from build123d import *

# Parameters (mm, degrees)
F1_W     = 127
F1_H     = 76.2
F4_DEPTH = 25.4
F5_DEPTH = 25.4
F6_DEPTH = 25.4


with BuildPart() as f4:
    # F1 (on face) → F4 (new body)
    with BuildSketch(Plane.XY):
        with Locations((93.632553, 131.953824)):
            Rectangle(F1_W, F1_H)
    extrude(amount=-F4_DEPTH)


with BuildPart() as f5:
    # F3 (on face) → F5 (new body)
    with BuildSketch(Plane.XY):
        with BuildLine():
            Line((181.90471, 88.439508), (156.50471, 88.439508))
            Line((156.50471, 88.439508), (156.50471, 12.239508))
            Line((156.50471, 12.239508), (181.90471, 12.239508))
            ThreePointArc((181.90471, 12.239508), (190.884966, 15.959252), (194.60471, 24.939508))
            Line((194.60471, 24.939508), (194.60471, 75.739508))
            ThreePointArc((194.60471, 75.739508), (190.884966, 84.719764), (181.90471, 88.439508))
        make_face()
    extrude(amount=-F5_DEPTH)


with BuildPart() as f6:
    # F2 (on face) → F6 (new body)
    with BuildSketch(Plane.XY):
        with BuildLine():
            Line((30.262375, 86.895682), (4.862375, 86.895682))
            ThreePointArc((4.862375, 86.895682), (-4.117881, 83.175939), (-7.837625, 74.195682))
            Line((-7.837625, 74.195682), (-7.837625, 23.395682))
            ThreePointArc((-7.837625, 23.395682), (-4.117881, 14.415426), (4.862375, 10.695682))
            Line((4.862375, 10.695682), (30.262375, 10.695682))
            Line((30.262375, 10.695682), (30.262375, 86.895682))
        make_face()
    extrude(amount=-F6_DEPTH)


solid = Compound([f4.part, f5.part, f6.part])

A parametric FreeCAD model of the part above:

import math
import FreeCAD as App
import Part
import Sketcher

V = App.Vector
Q = App.Units.Quantity


def add_polygon(sketch, points):
    """Adds a closed chain of lines whose ends are joined by coincident constraints."""
    first, n = sketch.GeometryCount, len(points)
    for a, b in zip(points, points[1:] + points[:1]):
        sketch.addGeometry(Part.LineSegment(App.Vector(*a, 0), App.Vector(*b, 0)), False)
    for i in range(n):
        sketch.addConstraint(Sketcher.Constraint("Coincident", first + i, 2, first + (i + 1) % n, 1))

doc = App.newDocument("Part")
params = doc.addObject("Spreadsheet::Sheet", "Params")
for row, (alias, value) in enumerate([
    ("sketch1_width", "5 in"),
    ("sketch1_height", "3 in"),
    ("pad1_length", "1 in"),
    ("sketch2_radius", "0.5 in"),
    ("sketch2_width", "1 in"),
    ("sketch2_height", "3 in"),
    ("pad2_length", "1 in"),
    ("sketch3_radius", "0.4999999 in"),
    ("sketch3_width", "1 in"),
    ("sketch3_height", "2 in"),
    ("pad3_length", "1 in"),
], start=1):
    params.set(f"A{row}", alias)
    params.set(f"B{row}", "=" + value)
    params.setAlias(f"B{row}", alias)

body = doc.addObject("PartDesign::Body", "Body")

sketch1 = body.newObject("Sketcher::SketchObject", "Sketch")
sketch1.AttachmentSupport = (doc.getObject("XY_Plane"), [""])
sketch1.MapMode = "FlatFace"
add_polygon(sketch1, [(30.132553, 170.053824), (30.132553, 93.853824), (157.132553, 93.853824), (157.132553, 170.053824)])
sketch1.addConstraint(Sketcher.Constraint("Vertical", 0))
sketch1.addConstraint(Sketcher.Constraint("Horizontal", 1))
sketch1.addConstraint(Sketcher.Constraint("Vertical", 2))
sketch1.addConstraint(Sketcher.Constraint("Horizontal", 3))
sketch1.addConstraint(Sketcher.Constraint("DistanceX", 1, 1, 1, 2, Q("5 in")))
sketch1.addConstraint(Sketcher.Constraint("DistanceY", 0, 2, 0, 1, Q("3 in")))
sketch1.addConstraint(Sketcher.Constraint("DistanceX", -1, 1, 0, 2, 30.132553))
sketch1.addConstraint(Sketcher.Constraint("DistanceY", -1, 1, 0, 2, 93.853824))
sketch1.setExpression("Constraints[8]", "Params.sketch1_width")
sketch1.setExpression("Constraints[9]", "Params.sketch1_height")
pad1 = body.newObject("PartDesign::Pad", "Pad")
pad1.Profile = sketch1
pad1.setExpression("Length", "Params.pad1_length")
pad1.Reversed = True
body2 = doc.addObject("PartDesign::Body", "Body001")

sketch2 = body2.newObject("Sketcher::SketchObject", "Sketch001")
sketch2.AttachmentSupport = (doc.getObject("XY_Plane001"), [""])
sketch2.MapMode = "FlatFace"
sketch2.addGeometry(Part.LineSegment(V(181.90471, 88.439508, 0), V(156.50471, 88.439508, 0)), False)
sketch2.addGeometry(Part.LineSegment(V(156.50471, 88.439508, 0), V(156.50471, 12.239508, 0)), False)
sketch2.addGeometry(Part.LineSegment(V(156.50471, 12.239508, 0), V(181.90471, 12.239508, 0)), False)
sketch2.addGeometry(Part.ArcOfCircle(Part.Circle(V(181.90471, 24.939508, 0), V(0, 0, 1), 12.7), math.radians(-89.999998), math.radians(-0.000002)), False)
sketch2.addGeometry(Part.LineSegment(V(194.60471, 24.939508, 0), V(194.60471, 75.739508, 0)), False)
sketch2.addGeometry(Part.ArcOfCircle(Part.Circle(V(181.90471, 75.739508, 0), V(0, 0, 1), 12.7), math.radians(0.000002), math.radians(89.999998)), False)
sketch2.addConstraint(Sketcher.Constraint("Coincident", 0, 2, 1, 1))
sketch2.addConstraint(Sketcher.Constraint("Coincident", 1, 2, 2, 1))
sketch2.addConstraint(Sketcher.Constraint("Tangent", 2, 2, 3, 1))
sketch2.addConstraint(Sketcher.Constraint("Tangent", 3, 2, 4, 1))
sketch2.addConstraint(Sketcher.Constraint("Tangent", 4, 2, 5, 1))
sketch2.addConstraint(Sketcher.Constraint("Tangent", 5, 2, 0, 1))
sketch2.addConstraint(Sketcher.Constraint("Horizontal", 0))
sketch2.addConstraint(Sketcher.Constraint("Vertical", 1))
sketch2.addConstraint(Sketcher.Constraint("Horizontal", 2))
sketch2.addConstraint(Sketcher.Constraint("Vertical", 4))
sketch2.addConstraint(Sketcher.Constraint("Equal", 3, 5))
sketch2.addConstraint(Sketcher.Constraint("Radius", 3, Q("0.5 in")))
sketch2.addConstraint(Sketcher.Constraint("DistanceX", 0, 2, 0, 1, Q("1 in")))
sketch2.addConstraint(Sketcher.Constraint("DistanceY", 1, 2, 1, 1, Q("3 in")))
sketch2.addConstraint(Sketcher.Constraint("DistanceX", -1, 1, 3, 3, 181.90471))
sketch2.addConstraint(Sketcher.Constraint("DistanceY", -1, 1, 3, 3, 24.939508))
sketch2.setExpression("Constraints[11]", "Params.sketch2_radius")
sketch2.setExpression("Constraints[12]", "Params.sketch2_width")
sketch2.setExpression("Constraints[13]", "Params.sketch2_height")
pad2 = body2.newObject("PartDesign::Pad", "Pad001")
pad2.Profile = sketch2
pad2.setExpression("Length", "Params.pad2_length")
pad2.Reversed = True
body3 = doc.addObject("PartDesign::Body", "Body002")

sketch3 = body3.newObject("Sketcher::SketchObject", "Sketch002")
sketch3.AttachmentSupport = (doc.getObject("XY_Plane002"), [""])
sketch3.MapMode = "FlatFace"
sketch3.addGeometry(Part.LineSegment(V(30.262375, 86.895682, 0), V(4.862375, 86.895682, 0)), False)
sketch3.addGeometry(Part.ArcOfCircle(Part.Circle(V(4.862374, 74.195683, 0), V(0, 0, 1), 12.699999), math.radians(89.999994), math.radians(180.000006)), False)
sketch3.addGeometry(Part.LineSegment(V(-7.837625, 74.195682, 0), V(-7.837625, 23.395682, 0)), False)
sketch3.addGeometry(Part.ArcOfCircle(Part.Circle(V(4.862375, 23.395682, 0), V(0, 0, 1), 12.7), math.radians(-179.999998), math.radians(-90.000002)), False)
sketch3.addGeometry(Part.LineSegment(V(4.862375, 10.695682, 0), V(30.262375, 10.695682, 0)), False)
sketch3.addGeometry(Part.LineSegment(V(30.262375, 10.695682, 0), V(30.262375, 86.895682, 0)), False)
sketch3.addConstraint(Sketcher.Constraint("Tangent", 0, 2, 1, 1))
sketch3.addConstraint(Sketcher.Constraint("Tangent", 1, 2, 2, 1))
sketch3.addConstraint(Sketcher.Constraint("Tangent", 2, 2, 3, 1))
sketch3.addConstraint(Sketcher.Constraint("Tangent", 3, 2, 4, 1))
sketch3.addConstraint(Sketcher.Constraint("Coincident", 4, 2, 5, 1))
sketch3.addConstraint(Sketcher.Constraint("Coincident", 5, 2, 0, 1))
sketch3.addConstraint(Sketcher.Constraint("Horizontal", 0))
sketch3.addConstraint(Sketcher.Constraint("Vertical", 2))
sketch3.addConstraint(Sketcher.Constraint("Horizontal", 4))
sketch3.addConstraint(Sketcher.Constraint("Vertical", 5))
sketch3.addConstraint(Sketcher.Constraint("Equal", 1, 3))
sketch3.addConstraint(Sketcher.Constraint("Radius", 1, Q("0.4999999 in")))
sketch3.addConstraint(Sketcher.Constraint("DistanceX", 0, 2, 0, 1, Q("1 in")))
sketch3.addConstraint(Sketcher.Constraint("DistanceY", 2, 2, 2, 1, Q("2 in")))
sketch3.addConstraint(Sketcher.Constraint("DistanceY", -1, 1, 0, 2, 86.895682))
sketch3.addConstraint(Sketcher.Constraint("DistanceX", -1, 1, 1, 3, 4.862374))
sketch3.setExpression("Constraints[11]", "Params.sketch3_radius")
sketch3.setExpression("Constraints[12]", "Params.sketch3_width")
sketch3.setExpression("Constraints[13]", "Params.sketch3_height")
pad3 = body3.newObject("PartDesign::Pad", "Pad002")
pad3.Profile = sketch3
pad3.setExpression("Length", "Params.pad3_length")
pad3.Reversed = True

doc.recompute()
